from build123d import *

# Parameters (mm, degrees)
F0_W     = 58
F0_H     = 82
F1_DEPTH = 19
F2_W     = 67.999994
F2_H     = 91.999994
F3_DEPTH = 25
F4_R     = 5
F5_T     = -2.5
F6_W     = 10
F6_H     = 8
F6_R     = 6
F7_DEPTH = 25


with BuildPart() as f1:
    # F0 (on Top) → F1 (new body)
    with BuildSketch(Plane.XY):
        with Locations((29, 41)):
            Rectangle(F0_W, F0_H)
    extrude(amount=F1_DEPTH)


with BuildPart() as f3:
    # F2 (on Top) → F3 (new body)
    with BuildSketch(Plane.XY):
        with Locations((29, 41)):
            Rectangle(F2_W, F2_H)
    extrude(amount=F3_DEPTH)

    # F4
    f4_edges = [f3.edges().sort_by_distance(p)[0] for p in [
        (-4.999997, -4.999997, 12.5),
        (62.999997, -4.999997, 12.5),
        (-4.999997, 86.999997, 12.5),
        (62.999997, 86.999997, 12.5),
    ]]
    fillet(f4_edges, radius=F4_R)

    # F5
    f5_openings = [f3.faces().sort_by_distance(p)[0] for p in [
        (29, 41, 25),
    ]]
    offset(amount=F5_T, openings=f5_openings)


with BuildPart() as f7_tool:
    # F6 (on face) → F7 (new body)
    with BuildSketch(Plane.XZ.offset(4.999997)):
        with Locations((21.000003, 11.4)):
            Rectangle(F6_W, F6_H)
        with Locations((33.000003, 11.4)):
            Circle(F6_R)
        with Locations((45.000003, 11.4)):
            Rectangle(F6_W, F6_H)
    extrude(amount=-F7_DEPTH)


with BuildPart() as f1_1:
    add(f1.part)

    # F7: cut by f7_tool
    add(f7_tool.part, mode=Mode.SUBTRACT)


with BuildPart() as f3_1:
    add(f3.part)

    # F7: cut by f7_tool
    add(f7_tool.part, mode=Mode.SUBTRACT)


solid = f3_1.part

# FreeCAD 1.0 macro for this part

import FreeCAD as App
import Part
import Sketcher
Q = App.Units.Quantity


def edges_at(feature, points):
    """Names of the edges that pass closest to the given points."""
    edges = feature.Shape.Edges
    near = lambda p: min(range(len(edges)), key=lambda i: edges[i].distToShape(Part.Vertex(*p))[0])
    return sorted({f"Edge{near(p) + 1}" for p in points})


def faces_at(feature, points):
    """Names of the faces that lie closest to the given points."""
    faces = feature.Shape.Faces
    near = lambda p: min(range(len(faces)), key=lambda i: faces[i].distToShape(Part.Vertex(*p))[0])
    return sorted({f"Face{near(p) + 1}" for p in points})


def add_polygon(sketch, points):
    """Adds a closed chain of lines whose ends are joined by coincident constraints."""
    first, n = sketch.GeometryCount, len(points)
    for a, b in zip(points, points[1:] + points[:1]):
        sketch.addGeometry(Part.LineSegment(App.Vector(*a, 0), App.Vector(*b, 0)), False)
    for i in range(n):
        sketch.addConstraint(Sketcher.Constraint("Coincident", first + i, 2, first + (i + 1) % n, 1))

doc = App.newDocument("Part")
params = doc.addObject("Spreadsheet::Sheet", "Params")
for row, (alias, value) in enumerate([
    ("sketch1_width", "58 mm"),
    ("sketch1_height", "82 mm"),
    ("pad1_length", "19 mm"),
    ("pad2_length", "25 mm"),
    ("fillet_radius", "5 mm"),
    ("thickness_wall", "2.5 mm"),
    ("sketch3_diameter", "12 mm"),
    ("sketch3_width", "10 mm"),
    ("sketch3_height", "8 mm"),
    ("pad3_length", "25 mm"),
], start=1):
    params.set(f"A{row}", alias)
    params.set(f"B{row}", "=" + value)
    params.setAlias(f"B{row}", alias)

body = doc.addObject("PartDesign::Body", "Body")

sketch1 = body.newObject("Sketcher::SketchObject", "Sketch")
sketch1.AttachmentSupport = (doc.getObject("XY_Plane"), [""])
sketch1.MapMode = "FlatFace"
add_polygon(sketch1, [(0, 82), (0, 0), (58, 0), (58, 82)])
sketch1.addConstraint(Sketcher.Constraint("Vertical", 0))
sketch1.addConstraint(Sketcher.Constraint("Horizontal", 1))
sketch1.addConstraint(Sketcher.Constraint("Vertical", 2))
sketch1.addConstraint(Sketcher.Constraint("Horizontal", 3))
sketch1.addConstraint(Sketcher.Constraint("Coincident", 0, 2, -1, 1))
sketch1.addConstraint(Sketcher.Constraint("DistanceX", 1, 1, 1, 2, Q("58 mm")))
sketch1.addConstraint(Sketcher.Constraint("DistanceY", 0, 2, 0, 1, Q("82 mm")))
sketch1.setExpression("Constraints[9]", "Params.sketch1_width")
sketch1.setExpression("Constraints[10]", "Params.sketch1_height")
pad1 = body.newObject("PartDesign::Pad", "Pad")
pad1.Profile = sketch1
pad1.setExpression("Length", "Params.pad1_length")
body2 = doc.addObject("PartDesign::Body", "Body001")

sketch2 = body2.newObject("Sketcher::SketchObject", "Sketch001")
sketch2.AttachmentSupport = (doc.getObject("XY_Plane001"), [""])
sketch2.MapMode = "FlatFace"
add_polygon(sketch2, [(-4.999997, 86.999997), (-4.999997, -4.999997), (62.999997, -4.999997), (62.999997, 86.999997)])
sketch2.addConstraint(Sketcher.Constraint("Vertical", 0))
sketch2.addConstraint(Sketcher.Constraint("Horizontal", 1))
sketch2.addConstraint(Sketcher.Constraint("Vertical", 2))
sketch2.addConstraint(Sketcher.Constraint("Horizontal", 3))
sketch2.addConstraint(Sketcher.Constraint("DistanceX", 1, 1, 1, 2, Q("67.999994 mm")))
sketch2.addConstraint(Sketcher.Constraint("DistanceY", 0, 2, 0, 1, Q("91.999994 mm")))
sketch2.addConstraint(Sketcher.Constraint("DistanceX", 0, 2, -1, 1, Q("4.999997 mm")))
sketch2.addConstraint(Sketcher.Constraint("DistanceY", 0, 2, -1, 1, Q("4.999997 mm")))
pad2 = body2.newObject("PartDesign::Pad", "Pad001")
pad2.Profile = sketch2
pad2.setExpression("Length", "Params.pad2_length")
doc.recompute()

fillet = body2.newObject("PartDesign::Fillet", "Fillet")
fillet.Base = (pad2, edges_at(pad2, [
    (-5, -5, 12.5),
    (63, -5, 12.5),
    (-5, 87, 12.5),
    (63, 87, 12.5),
]))
fillet.setExpression("Radius", "Params.fillet_radius")
doc.recompute()

thickness = body2.newObject("PartDesign::Thickness", "Thickness")
thickness.Base = (fillet, faces_at(fillet, [(29, 41, 25)]))
thickness.setExpression("Value", "Params.thickness_wall")
thickness.Reversed = True
thickness.Join = "Arc"
body3 = doc.addObject("PartDesign::Body", "Body002")
body3.AllowCompound = True

sketch3 = body3.newObject("Sketcher::SketchObject", "Sketch002")
sketch3.AttachmentSupport = (doc.getObject("XZ_Plane002"), [""])
sketch3.MapMode = "FlatFace"
sketch3.AttachmentOffset = App.Placement(App.Vector(0, 0, 4.999997), App.Rotation())
add_polygon(sketch3, [(16.000003, 15.4), (16.000003, 7.4), (26.000003, 7.4), (26.000003, 15.4)])
sketch3.addGeometry(Part.Circle(App.Vector(33.000003, 11.4, 0), App.Vector(0, 0, 1), 6), False)
add_polygon(sketch3, [(40.000003, 15.4), (40.000003, 7.4), (50.000003, 7.4), (50.000003, 15.4)])
sketch3.addConstraint(Sketcher.Constraint("Vertical", 0))
sketch3.addConstraint(Sketcher.Constraint("Horizontal", 1))
sketch3.addConstraint(Sketcher.Constraint("Vertical", 2))
sketch3.addConstraint(Sketcher.Constraint("Horizontal", 3))
sketch3.addConstraint(Sketcher.Constraint("Vertical", 5))
sketch3.addConstraint(Sketcher.Constraint("Horizontal", 6))
sketch3.addConstraint(Sketcher.Constraint("Vertical", 7))
sketch3.addConstraint(Sketcher.Constraint("Horizontal", 8))
sketch3.addConstraint(Sketcher.Constraint("Horizontal", 1, 2, 5, 2))
sketch3.addConstraint(Sketcher.Constraint("Horizontal", 3, 2, 7, 2))
sketch3.addConstraint(Sketcher.Constraint("Equal", 3, 6))
sketch3.addConstraint(Sketcher.Constraint("Diameter", 4, Q("12 mm")))
sketch3.addConstraint(Sketcher.Constraint("DistanceX", 1, 1, 1, 2, Q("10 mm")))
sketch3.addConstraint(Sketcher.Constraint("DistanceY", 0, 2, 0, 1, Q("8 mm")))
sketch3.addConstraint(Sketcher.Constraint("DistanceX", 0, 2, 4, 3, Q("17 mm")))
sketch3.addConstraint(Sketcher.Constraint("DistanceY", 0, 2, 4, 3, Q("4 mm")))
sketch3.addConstraint(Sketcher.Constraint("DistanceX", 4, 3, 5, 2, Q("7 mm")))
sketch3.addConstraint(Sketcher.Constraint("DistanceY", -1, 1, 4, 3, Q("11.4 mm")))
sketch3.addConstraint(Sketcher.Constraint("DistanceX", -1, 1, 4, 3, Q("33.000003 mm")))
sketch3.setExpression("Constraints[19]", "Params.sketch3_diameter")
sketch3.setExpression("Constraints[20]", "Params.sketch3_width")
sketch3.setExpression("Constraints[21]", "Params.sketch3_height")
pad3 = body3.newObject("PartDesign::Pad", "Pad002")
pad3.Profile = sketch3
pad3.setExpression("Length", "Params.pad3_length")
pad3.Reversed = True
doc.recompute()

body4 = doc.addObject("PartDesign::Body", "Body003")
body4.BaseFeature = body3
boolean = body.newObject("PartDesign::Boolean", "Boolean")
boolean.Type = "Cut"
boolean.addObjects([body4])
doc.recompute()

boolean2 = body2.newObject("PartDesign::Boolean", "Boolean001")
boolean2.Type = "Cut"
boolean2.addObjects([body3])
body.Visibility = False

doc.recompute()
